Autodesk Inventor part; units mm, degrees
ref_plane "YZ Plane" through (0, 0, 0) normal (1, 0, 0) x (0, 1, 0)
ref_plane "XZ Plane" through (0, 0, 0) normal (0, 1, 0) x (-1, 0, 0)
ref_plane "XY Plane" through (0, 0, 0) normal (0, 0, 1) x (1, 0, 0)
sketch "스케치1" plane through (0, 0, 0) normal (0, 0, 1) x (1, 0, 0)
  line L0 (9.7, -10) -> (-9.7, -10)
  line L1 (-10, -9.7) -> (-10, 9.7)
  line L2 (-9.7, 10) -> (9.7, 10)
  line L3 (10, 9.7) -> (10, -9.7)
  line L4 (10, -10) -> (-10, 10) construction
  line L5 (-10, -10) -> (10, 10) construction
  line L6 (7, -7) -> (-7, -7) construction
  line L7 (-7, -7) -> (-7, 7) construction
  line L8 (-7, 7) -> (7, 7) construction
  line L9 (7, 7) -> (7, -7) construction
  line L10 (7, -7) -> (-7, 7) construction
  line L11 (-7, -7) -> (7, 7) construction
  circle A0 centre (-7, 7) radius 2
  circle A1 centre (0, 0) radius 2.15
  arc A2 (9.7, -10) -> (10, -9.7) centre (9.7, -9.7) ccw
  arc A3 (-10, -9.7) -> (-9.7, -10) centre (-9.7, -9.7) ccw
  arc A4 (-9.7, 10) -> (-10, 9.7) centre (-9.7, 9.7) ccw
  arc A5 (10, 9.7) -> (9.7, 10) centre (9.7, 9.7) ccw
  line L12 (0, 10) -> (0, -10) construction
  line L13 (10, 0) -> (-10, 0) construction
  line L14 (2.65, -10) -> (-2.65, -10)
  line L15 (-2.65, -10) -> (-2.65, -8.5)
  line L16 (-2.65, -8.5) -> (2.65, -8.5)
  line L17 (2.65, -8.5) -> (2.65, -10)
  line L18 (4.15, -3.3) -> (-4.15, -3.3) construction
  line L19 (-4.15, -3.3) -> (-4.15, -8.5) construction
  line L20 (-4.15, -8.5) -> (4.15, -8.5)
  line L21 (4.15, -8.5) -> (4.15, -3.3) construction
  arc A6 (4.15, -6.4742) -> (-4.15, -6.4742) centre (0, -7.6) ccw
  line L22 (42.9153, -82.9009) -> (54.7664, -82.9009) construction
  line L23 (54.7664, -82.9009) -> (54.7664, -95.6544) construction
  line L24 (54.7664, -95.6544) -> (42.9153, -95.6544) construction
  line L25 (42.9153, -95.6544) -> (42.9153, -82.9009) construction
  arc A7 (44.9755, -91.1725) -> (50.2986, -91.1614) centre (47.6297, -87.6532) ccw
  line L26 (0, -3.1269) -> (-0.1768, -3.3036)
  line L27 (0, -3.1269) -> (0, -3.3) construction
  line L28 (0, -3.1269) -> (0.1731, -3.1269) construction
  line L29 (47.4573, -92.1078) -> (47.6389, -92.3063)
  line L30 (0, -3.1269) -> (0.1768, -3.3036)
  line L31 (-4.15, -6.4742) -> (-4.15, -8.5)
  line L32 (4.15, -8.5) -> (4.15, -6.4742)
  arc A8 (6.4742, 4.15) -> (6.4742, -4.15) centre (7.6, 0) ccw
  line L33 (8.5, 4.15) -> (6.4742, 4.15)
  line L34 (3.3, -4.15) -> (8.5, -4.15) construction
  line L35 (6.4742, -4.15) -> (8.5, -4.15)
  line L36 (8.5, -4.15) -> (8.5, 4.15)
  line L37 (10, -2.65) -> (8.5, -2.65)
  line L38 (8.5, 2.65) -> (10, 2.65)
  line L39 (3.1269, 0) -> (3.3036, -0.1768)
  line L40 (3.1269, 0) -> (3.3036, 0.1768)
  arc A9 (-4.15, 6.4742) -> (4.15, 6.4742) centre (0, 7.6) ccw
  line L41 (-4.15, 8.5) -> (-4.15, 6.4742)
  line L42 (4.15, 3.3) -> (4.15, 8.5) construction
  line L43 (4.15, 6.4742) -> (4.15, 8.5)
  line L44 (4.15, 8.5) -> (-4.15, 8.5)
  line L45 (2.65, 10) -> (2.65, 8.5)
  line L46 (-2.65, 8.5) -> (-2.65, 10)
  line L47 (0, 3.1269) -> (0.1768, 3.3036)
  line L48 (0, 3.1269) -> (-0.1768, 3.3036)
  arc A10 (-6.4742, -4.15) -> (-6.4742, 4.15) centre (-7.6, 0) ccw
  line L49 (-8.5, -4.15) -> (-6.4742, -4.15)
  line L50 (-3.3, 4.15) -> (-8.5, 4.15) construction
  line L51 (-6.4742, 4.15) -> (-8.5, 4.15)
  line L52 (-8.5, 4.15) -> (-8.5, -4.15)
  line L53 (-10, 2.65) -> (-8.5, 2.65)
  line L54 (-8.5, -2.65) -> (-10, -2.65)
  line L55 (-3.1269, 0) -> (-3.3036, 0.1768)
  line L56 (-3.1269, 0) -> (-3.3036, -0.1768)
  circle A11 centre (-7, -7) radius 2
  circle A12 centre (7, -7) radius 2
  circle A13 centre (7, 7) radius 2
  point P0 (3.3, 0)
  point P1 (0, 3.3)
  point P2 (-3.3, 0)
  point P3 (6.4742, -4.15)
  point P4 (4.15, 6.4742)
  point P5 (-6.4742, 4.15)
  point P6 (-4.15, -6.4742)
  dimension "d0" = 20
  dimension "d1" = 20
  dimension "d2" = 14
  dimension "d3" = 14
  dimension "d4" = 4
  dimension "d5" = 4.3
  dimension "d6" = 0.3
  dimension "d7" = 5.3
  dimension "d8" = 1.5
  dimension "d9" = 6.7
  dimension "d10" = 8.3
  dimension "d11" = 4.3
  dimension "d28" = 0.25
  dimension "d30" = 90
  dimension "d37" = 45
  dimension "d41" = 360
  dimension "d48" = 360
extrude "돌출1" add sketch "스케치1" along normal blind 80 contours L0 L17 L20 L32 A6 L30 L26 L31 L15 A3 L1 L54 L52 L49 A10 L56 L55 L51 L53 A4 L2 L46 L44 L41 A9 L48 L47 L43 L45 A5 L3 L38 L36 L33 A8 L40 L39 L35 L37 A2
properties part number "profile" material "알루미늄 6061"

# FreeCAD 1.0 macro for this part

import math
import FreeCAD as App
import Part
import Sketcher

doc = App.newDocument("Part")
body = doc.addObject("PartDesign::Body", "Body")

# Sketch on XY plane
sketch1 = doc.addObject("Sketcher::SketchObject", "Sketch")
body.addObject(sketch1)
sketch1.AttachmentSupport = (doc.XY_Plane, [""])
sketch1.MapMode = "FlatFace"
sketch1.addGeometry(Part.LineSegment(App.Vector(2.65, -10, 0), App.Vector(9.7, -10, 0)), False)
sketch1.addGeometry(Part.ArcOfCircle(Part.Circle(App.Vector(9.7, -9.7, 0), App.Vector(0, 0, 1), 0.3), math.radians(-90), math.radians(0)), False)
sketch1.addGeometry(Part.LineSegment(App.Vector(10, -9.7, 0), App.Vector(10, -2.65, 0)), False)
sketch1.addGeometry(Part.LineSegment(App.Vector(10, -2.65, 0), App.Vector(8.5, -2.65, 0)), False)
sketch1.addGeometry(Part.LineSegment(App.Vector(8.5, -2.65, 0), App.Vector(8.5, -4.15, 0)), False)
sketch1.addGeometry(Part.LineSegment(App.Vector(8.5, -4.15, 0), App.Vector(6.47, -4.15, 0)), False)
sketch1.addGeometry(Part.ArcOfCircle(Part.Circle(App.Vector(7.6, 0, 0), App.Vector(0, 0, 1), 4.3), math.radians(-178), math.radians(-105)), False)
sketch1.addGeometry(Part.LineSegment(App.Vector(3.3, -0.18, 0), App.Vector(3.13, 0, 0)), False)
sketch1.addGeometry(Part.LineSegment(App.Vector(3.13, 0, 0), App.Vector(3.3, 0.18, 0)), False)
sketch1.addGeometry(Part.ArcOfCircle(Part.Circle(App.Vector(7.6, 0, 0), App.Vector(0, 0, 1), 4.3), math.radians(105), math.radians(178)), False)
sketch1.addGeometry(Part.LineSegment(App.Vector(6.47, 4.15, 0), App.Vector(8.5, 4.15, 0)), False)
sketch1.addGeometry(Part.LineSegment(App.Vector(8.5, 4.15, 0), App.Vector(8.5, 2.65, 0)), False)
sketch1.addGeometry(Part.LineSegment(App.Vector(8.5, 2.65, 0), App.Vector(10, 2.65, 0)), False)
sketch1.addGeometry(Part.LineSegment(App.Vector(10, 2.65, 0), App.Vector(10, 9.7, 0)), False)
sketch1.addGeometry(Part.ArcOfCircle(Part.Circle(App.Vector(9.7, 9.7, 0), App.Vector(0, 0, 1), 0.3), math.radians(0), math.radians(90)), False)
sketch1.addGeometry(Part.LineSegment(App.Vector(9.7, 10, 0), App.Vector(2.65, 10, 0)), False)
sketch1.addGeometry(Part.LineSegment(App.Vector(2.65, 10, 0), App.Vector(2.65, 8.5, 0)), False)
sketch1.addGeometry(Part.LineSegment(App.Vector(2.65, 8.5, 0), App.Vector(4.15, 8.5, 0)), False)
sketch1.addGeometry(Part.LineSegment(App.Vector(4.15, 8.5, 0), App.Vector(4.15, 6.47, 0)), False)
sketch1.addGeometry(Part.ArcOfCircle(Part.Circle(App.Vector(0, 7.6, 0), App.Vector(0, 0, 1), 4.3), math.radians(-88), math.radians(-15)), False)
sketch1.addGeometry(Part.LineSegment(App.Vector(0.18, 3.3, 0), App.Vector(0, 3.13, 0)), False)
sketch1.addGeometry(Part.LineSegment(App.Vector(0, 3.13, 0), App.Vector(-0.18, 3.3, 0)), False)
sketch1.addGeometry(Part.ArcOfCircle(Part.Circle(App.Vector(0, 7.6, 0), App.Vector(0, 0, 1), 4.3), math.radians(-165), math.radians(-92)), False)
sketch1.addGeometry(Part.LineSegment(App.Vector(-4.15, 6.47, 0), App.Vector(-4.15, 8.5, 0)), False)
sketch1.addGeometry(Part.LineSegment(App.Vector(-4.15, 8.5, 0), App.Vector(-2.65, 8.5, 0)), False)
sketch1.addGeometry(Part.LineSegment(App.Vector(-2.65, 8.5, 0), App.Vector(-2.65, 10, 0)), False)
sketch1.addGeometry(Part.LineSegment(App.Vector(-2.65, 10, 0), App.Vector(-9.7, 10, 0)), False)
sketch1.addGeometry(Part.ArcOfCircle(Part.Circle(App.Vector(-9.7, 9.7, 0), App.Vector(0, 0, 1), 0.3), math.radians(90), math.radians(180)), False)
sketch1.addGeometry(Part.LineSegment(App.Vector(-10, 9.7, 0), App.Vector(-10, 2.65, 0)), False)
sketch1.addGeometry(Part.LineSegment(App.Vector(-10, 2.65, 0), App.Vector(-8.5, 2.65, 0)), False)
sketch1.addGeometry(Part.LineSegment(App.Vector(-8.5, 2.65, 0), App.Vector(-8.5, 4.15, 0)), False)
sketch1.addGeometry(Part.LineSegment(App.Vector(-8.5, 4.15, 0), App.Vector(-6.47, 4.15, 0)), False)
sketch1.addGeometry(Part.ArcOfCircle(Part.Circle(App.Vector(-7.6, 0, 0), App.Vector(0, 0, 1), 4.3), math.radians(2), math.radians(75)), False)
sketch1.addGeometry(Part.LineSegment(App.Vector(-3.3, 0.18, 0), App.Vector(-3.13, 0, 0)), False)
sketch1.addGeometry(Part.LineSegment(App.Vector(-3.13, 0, 0), App.Vector(-3.3, -0.18, 0)), False)
sketch1.addGeometry(Part.ArcOfCircle(Part.Circle(App.Vector(-7.6, 0, 0), App.Vector(0, 0, 1), 4.3), math.radians(-75), math.radians(-2)), False)
sketch1.addGeometry(Part.LineSegment(App.Vector(-6.47, -4.15, 0), App.Vector(-8.5, -4.15, 0)), False)
sketch1.addGeometry(Part.LineSegment(App.Vector(-8.5, -4.15, 0), App.Vector(-8.5, -2.65, 0)), False)
sketch1.addGeometry(Part.LineSegment(App.Vector(-8.5, -2.65, 0), App.Vector(-10, -2.65, 0)), False)
sketch1.addGeometry(Part.LineSegment(App.Vector(-10, -2.65, 0), App.Vector(-10, -9.7, 0)), False)
sketch1.addGeometry(Part.ArcOfCircle(Part.Circle(App.Vector(-9.7, -9.7, 0), App.Vector(0, 0, 1), 0.3), math.radians(180), math.radians(270)), False)
sketch1.addGeometry(Part.LineSegment(App.Vector(-9.7, -10, 0), App.Vector(-2.65, -10, 0)), False)
sketch1.addGeometry(Part.LineSegment(App.Vector(-2.65, -10, 0), App.Vector(-2.65, -8.5, 0)), False)
sketch1.addGeometry(Part.LineSegment(App.Vector(-2.65, -8.5, 0), App.Vector(-4.15, -8.5, 0)), False)
sketch1.addGeometry(Part.LineSegment(App.Vector(-4.15, -8.5, 0), App.Vector(-4.15, -6.47, 0)), False)
sketch1.addGeometry(Part.ArcOfCircle(Part.Circle(App.Vector(0, -7.6, 0), App.Vector(0, 0, 1), 4.3), math.radians(92), math.radians(165)), False)
sketch1.addGeometry(Part.LineSegment(App.Vector(-0.18, -3.3, 0), App.Vector(0, -3.13, 0)), False)
sketch1.addGeometry(Part.LineSegment(App.Vector(0, -3.13, 0), App.Vector(0.18, -3.3, 0)), False)
sketch1.addGeometry(Part.ArcOfCircle(Part.Circle(App.Vector(0, -7.6, 0), App.Vector(0, 0, 1), 4.3), math.radians(15), math.radians(88)), False)
sketch1.addGeometry(Part.LineSegment(App.Vector(4.15, -6.47, 0), App.Vector(4.15, -8.5, 0)), False)
sketch1.addGeometry(Part.LineSegment(App.Vector(4.15, -8.5, 0), App.Vector(2.65, -8.5, 0)), False)
sketch1.addGeometry(Part.LineSegment(App.Vector(2.65, -8.5, 0), App.Vector(2.65, -10, 0)), False)
sketch1.addGeometry(Part.Circle(App.Vector(-7, -7, 0), App.Vector(0, 0, 1), 2), False)
sketch1.addGeometry(Part.Circle(App.Vector(7, -7, 0), App.Vector(0, 0, 1), 2), False)
sketch1.addGeometry(Part.Circle(App.Vector(-7, 7, 0), App.Vector(0, 0, 1), 2), False)
sketch1.addGeometry(Part.Circle(App.Vector(0, 0, 0), App.Vector(0, 0, 1), 2.15), False)
sketch1.addGeometry(Part.Circle(App.Vector(7, 7, 0), App.Vector(0, 0, 1), 2), False)
sketch1.addConstraint(Sketcher.Constraint("Tangent", 0, 2, 1, 1))
sketch1.addConstraint(Sketcher.Constraint("Tangent", 1, 2, 2, 1))
sketch1.addConstraint(Sketcher.Constraint("Coincident", 2, 2, 3, 1))
sketch1.addConstraint(Sketcher.Constraint("Coincident", 3, 2, 4, 1))
sketch1.addConstraint(Sketcher.Constraint("Coincident", 4, 2, 5, 1))
sketch1.addConstraint(Sketcher.Constraint("Coincident", 5, 2, 6, 2))
sketch1.addConstraint(Sketcher.Constraint("Coincident", 6, 1, 7, 1))
sketch1.addConstraint(Sketcher.Constraint("Coincident", 7, 2, 8, 1))
sketch1.addConstraint(Sketcher.Constraint("Coincident", 8, 2, 9, 2))
sketch1.addConstraint(Sketcher.Constraint("Coincident", 9, 1, 10, 1))
sketch1.addConstraint(Sketcher.Constraint("Coincident", 10, 2, 11, 1))
sketch1.addConstraint(Sketcher.Constraint("Coincident", 11, 2, 12, 1))
sketch1.addConstraint(Sketcher.Constraint("Coincident", 12, 2, 13, 1))
sketch1.addConstraint(Sketcher.Constraint("Tangent", 13, 2, 14, 1))
sketch1.addConstraint(Sketcher.Constraint("Tangent", 14, 2, 15, 1))
sketch1.addConstraint(Sketcher.Constraint("Coincident", 15, 2, 16, 1))
sketch1.addConstraint(Sketcher.Constraint("Coincident", 16, 2, 17, 1))
sketch1.addConstraint(Sketcher.Constraint("Coincident", 17, 2, 18, 1))
sketch1.addConstraint(Sketcher.Constraint("Coincident", 18, 2, 19, 2))
sketch1.addConstraint(Sketcher.Constraint("Coincident", 19, 1, 20, 1))
sketch1.addConstraint(Sketcher.Constraint("Coincident", 20, 2, 21, 1))
sketch1.addConstraint(Sketcher.Constraint("Coincident", 21, 2, 22, 2))
sketch1.addConstraint(Sketcher.Constraint("Coincident", 22, 1, 23, 1))
sketch1.addConstraint(Sketcher.Constraint("Coincident", 23, 2, 24, 1))
sketch1.addConstraint(Sketcher.Constraint("Coincident", 24, 2, 25, 1))
sketch1.addConstraint(Sketcher.Constraint("Coincident", 25, 2, 26, 1))
sketch1.addConstraint(Sketcher.Constraint("Tangent", 26, 2, 27, 1))
sketch1.addConstraint(Sketcher.Constraint("Tangent", 27, 2, 28, 1))
sketch1.addConstraint(Sketcher.Constraint("Coincident", 28, 2, 29, 1))
sketch1.addConstraint(Sketcher.Constraint("Coincident", 29, 2, 30, 1))
sketch1.addConstraint(Sketcher.Constraint("Coincident", 30, 2, 31, 1))
sketch1.addConstraint(Sketcher.Constraint("Coincident", 31, 2, 32, 2))
sketch1.addConstraint(Sketcher.Constraint("Coincident", 32, 1, 33, 1))
sketch1.addConstraint(Sketcher.Constraint("Coincident", 33, 2, 34, 1))
sketch1.addConstraint(Sketcher.Constraint("Coincident", 34, 2, 35, 2))
sketch1.addConstraint(Sketcher.Constraint("Coincident", 35, 1, 36, 1))
sketch1.addConstraint(Sketcher.Constraint("Coincident", 36, 2, 37, 1))
sketch1.addConstraint(Sketcher.Constraint("Coincident", 37, 2, 38, 1))
sketch1.addConstraint(Sketcher.Constraint("Coincident", 38, 2, 39, 1))
sketch1.addConstraint(Sketcher.Constraint("Tangent", 39, 2, 40, 1))
sketch1.addConstraint(Sketcher.Constraint("Tangent", 40, 2, 41, 1))
sketch1.addConstraint(Sketcher.Constraint("Coincident", 41, 2, 42, 1))
sketch1.addConstraint(Sketcher.Constraint("Coincident", 42, 2, 43, 1))
sketch1.addConstraint(Sketcher.Constraint("Coincident", 43, 2, 44, 1))
sketch1.addConstraint(Sketcher.Constraint("Coincident", 44, 2, 45, 2))
sketch1.addConstraint(Sketcher.Constraint("Coincident", 45, 1, 46, 1))
sketch1.addConstraint(Sketcher.Constraint("Coincident", 46, 2, 47, 1))
sketch1.addConstraint(Sketcher.Constraint("Coincident", 47, 2, 48, 2))
sketch1.addConstraint(Sketcher.Constraint("Coincident", 48, 1, 49, 1))
sketch1.addConstraint(Sketcher.Constraint("Coincident", 49, 2, 50, 1))
sketch1.addConstraint(Sketcher.Constraint("Coincident", 50, 2, 51, 1))
sketch1.addConstraint(Sketcher.Constraint("Coincident", 51, 2, 0, 1))
sketch1.addConstraint(Sketcher.Constraint("Horizontal", 0))
sketch1.addConstraint(Sketcher.Constraint("Vertical", 2))
sketch1.addConstraint(Sketcher.Constraint("Horizontal", 3))
sketch1.addConstraint(Sketcher.Constraint("Vertical", 4))
sketch1.addConstraint(Sketcher.Constraint("Horizontal", 5))
sketch1.addConstraint(Sketcher.Constraint("Horizontal", 10))
sketch1.addConstraint(Sketcher.Constraint("Vertical", 11))
sketch1.addConstraint(Sketcher.Constraint("Horizontal", 12))
sketch1.addConstraint(Sketcher.Constraint("Vertical", 13))
sketch1.addConstraint(Sketcher.Constraint("Horizontal", 15))
sketch1.addConstraint(Sketcher.Constraint("Vertical", 16))
sketch1.addConstraint(Sketcher.Constraint("Horizontal", 17))
sketch1.addConstraint(Sketcher.Constraint("Vertical", 18))
sketch1.addConstraint(Sketcher.Constraint("Vertical", 23))
sketch1.addConstraint(Sketcher.Constraint("Horizontal", 24))
sketch1.addConstraint(Sketcher.Constraint("Vertical", 25))
sketch1.addConstraint(Sketcher.Constraint("Horizontal", 26))
sketch1.addConstraint(Sketcher.Constraint("Vertical", 28))
sketch1.addConstraint(Sketcher.Constraint("Horizontal", 29))
sketch1.addConstraint(Sketcher.Constraint("Vertical", 30))
sketch1.addConstraint(Sketcher.Constraint("Horizontal", 31))
sketch1.addConstraint(Sketcher.Constraint("Horizontal", 36))
sketch1.addConstraint(Sketcher.Constraint("Vertical", 37))
sketch1.addConstraint(Sketcher.Constraint("Horizontal", 38))
sketch1.addConstraint(Sketcher.Constraint("Vertical", 39))
sketch1.addConstraint(Sketcher.Constraint("Horizontal", 41))
sketch1.addConstraint(Sketcher.Constraint("Vertical", 42))
sketch1.addConstraint(Sketcher.Constraint("Horizontal", 43))
sketch1.addConstraint(Sketcher.Constraint("Vertical", 44))
sketch1.addConstraint(Sketcher.Constraint("Vertical", 49))
sketch1.addConstraint(Sketcher.Constraint("Horizontal", 50))
sketch1.addConstraint(Sketcher.Constraint("Vertical", 51))
sketch1.addConstraint(Sketcher.Constraint("Coincident", 55, 3, -1, 1))
sketch1.addConstraint(Sketcher.Constraint("Coincident", 9, 3, 6, 3))
sketch1.addConstraint(Sketcher.Constraint("Coincident", 22, 3, 19, 3))
sketch1.addConstraint(Sketcher.Constraint("Coincident", 35, 3, 32, 3))
sketch1.addConstraint(Sketcher.Constraint("Coincident", 48, 3, 45, 3))
sketch1.addConstraint(Sketcher.Constraint("Equal", 6, 9))
sketch1.addConstraint(Sketcher.Constraint("Equal", 1, 14))
sketch1.addConstraint(Sketcher.Constraint("Equal", 9, 19))
sketch1.addConstraint(Sketcher.Constraint("Equal", 19, 22))
sketch1.addConstraint(Sketcher.Constraint("Equal", 14, 27))
sketch1.addConstraint(Sketcher.Constraint("Equal", 22, 32))
sketch1.addConstraint(Sketcher.Constraint("Equal", 32, 35))
sketch1.addConstraint(Sketcher.Constraint("Equal", 27, 40))
sketch1.addConstraint(Sketcher.Constraint("Equal", 35, 45))
sketch1.addConstraint(Sketcher.Constraint("Equal", 45, 48))
sketch1.addConstraint(Sketcher.Constraint("Equal", 52, 53))
sketch1.addConstraint(Sketcher.Constraint("Equal", 53, 54))
sketch1.addConstraint(Sketcher.Constraint("Equal", 54, 56))
sketch1.addConstraint(Sketcher.Constraint("Symmetric", 1, 3, 27, 3, -1, 1))
sketch1.addConstraint(Sketcher.Constraint("Symmetric", 6, 3, 32, 3, -1, 1))
sketch1.addConstraint(Sketcher.Constraint("Symmetric", 14, 3, 40, 3, -1, 1))
sketch1.addConstraint(Sketcher.Constraint("Symmetric", 19, 3, 45, 3, -1, 1))
sketch1.addConstraint(Sketcher.Constraint("Symmetric", 53, 3, 54, 3, -1, 1))
sketch1.addConstraint(Sketcher.Constraint("Symmetric", 52, 3, 56, 3, -1, 1))
sketch1.addConstraint(Sketcher.Constraint("Symmetric", 3, 2, 29, 2, -1, 1))
sketch1.addConstraint(Sketcher.Constraint("Symmetric", 7, 2, 33, 2, -1, 1))
sketch1.addConstraint(Sketcher.Constraint("Symmetric", 10, 2, 36, 2, -1, 1))
sketch1.addConstraint(Sketcher.Constraint("Symmetric", 16, 2, 42, 2, -1, 1))
sketch1.addConstraint(Sketcher.Constraint("Symmetric", 20, 2, 46, 2, -1, 1))
sketch1.addConstraint(Sketcher.Constraint("Symmetric", 23, 2, 49, 2, -1, 1))
sketch1.addConstraint(Sketcher.Constraint("Symmetric", 14, 3, 27, 3, -2))
sketch1.addConstraint(Sketcher.Constraint("Symmetric", 52, 3, 53, 3, -2))
sketch1.addConstraint(Sketcher.Constraint("Symmetric", 19, 1, 21, 2, -2))
sketch1.addConstraint(Sketcher.Constraint("Symmetric", 17, 2, 23, 2, -2))
sketch1.addConstraint(Sketcher.Constraint("Symmetric", 11, 2, 29, 2, -2))
sketch1.addConstraint(Sketcher.Constraint("Symmetric", 9, 1, 31, 2, -2))
sketch1.addConstraint(Sketcher.Constraint("PointOnObject", 7, 2, -1))
sketch1.addConstraint(Sketcher.Constraint("PointOnObject", 20, 2, -2))
sketch1.addConstraint(Sketcher.Constraint("Perpendicular", 7, 20))
sketch1.addConstraint(Sketcher.Constraint("Perpendicular", 8, 21))
sketch1.addConstraint(Sketcher.Constraint("Perpendicular", 20, 33))
sketch1.addConstraint(Sketcher.Constraint("Perpendicular", 21, 34))
sketch1.addConstraint(Sketcher.Constraint("Perpendicular", 33, 46))
sketch1.addConstraint(Sketcher.Constraint("Perpendicular", 34, 47))
sketch1.addConstraint(Sketcher.Constraint("Horizontal", 5, 2, 35, 1))
sketch1.addConstraint(Sketcher.Constraint("Horizontal", 3, 2, 37, 2))
sketch1.addConstraint(Sketcher.Constraint("Horizontal", 44, 2, 48, 1))
sketch1.addConstraint(Sketcher.Constraint("Vertical", 25, 2, 41, 2))
sketch1.addConstraint(Sketcher.Constraint("Vertical", 16, 2, 50, 2))
sketch1.addConstraint(Sketcher.Constraint("Equal", 12, 17))
sketch1.addConstraint(Sketcher.Constraint("Equal", 41, 2))
sketch1.addConstraint(Sketcher.Constraint("Equal", 50, 4))
sketch1.addConstraint(Sketcher.Constraint("Equal", 11, 16))
sketch1.addConstraint(Sketcher.Constraint("Equal", 36, 18))
sketch1.addConstraint(Sketcher.Constraint("Equal", 8, 20))
sketch1.addConstraint(Sketcher.Constraint("Diameter", 52, 4.0))
sketch1.addConstraint(Sketcher.Constraint("Diameter", 55, 4.3))
sketch1.addConstraint(Sketcher.Constraint("Radius", 1, 0.3))
sketch1.addConstraint(Sketcher.Constraint("Radius", 6, 4.3))
sketch1.addConstraint(Sketcher.Constraint("DistanceX", 3, 2, 3, 1, 1.5))
sketch1.addConstraint(Sketcher.Constraint("Distance", 7, 0.25))
sketch1.addConstraint(Sketcher.Constraint("DistanceX", 52, 3, -1, 1, 7.0))
sketch1.addConstraint(Sketcher.Constraint("DistanceY", 52, 3, -1, 1, 7.0))
sketch1.addConstraint(Sketcher.Constraint("DistanceY", 0, 2, -1, 1, 10.0))
sketch1.addConstraint(Sketcher.Constraint("DistanceX", -1, 1, 1, 2, 10.0))
sketch1.addConstraint(Sketcher.Constraint("DistanceX", 0, 1, 0, 2, 7.05))
sketch1.addConstraint(Sketcher.Constraint("DistanceX", -1, 1, 6, 3, 7.6))
sketch1.addConstraint(Sketcher.Constraint("DistanceX", -1, 1, 7, 2, 3.127))
pad1 = doc.addObject("PartDesign::Pad", "Pad")
body.addObject(pad1)
pad1.Profile = sketch1
pad1.Length = 80

doc.recompute()
